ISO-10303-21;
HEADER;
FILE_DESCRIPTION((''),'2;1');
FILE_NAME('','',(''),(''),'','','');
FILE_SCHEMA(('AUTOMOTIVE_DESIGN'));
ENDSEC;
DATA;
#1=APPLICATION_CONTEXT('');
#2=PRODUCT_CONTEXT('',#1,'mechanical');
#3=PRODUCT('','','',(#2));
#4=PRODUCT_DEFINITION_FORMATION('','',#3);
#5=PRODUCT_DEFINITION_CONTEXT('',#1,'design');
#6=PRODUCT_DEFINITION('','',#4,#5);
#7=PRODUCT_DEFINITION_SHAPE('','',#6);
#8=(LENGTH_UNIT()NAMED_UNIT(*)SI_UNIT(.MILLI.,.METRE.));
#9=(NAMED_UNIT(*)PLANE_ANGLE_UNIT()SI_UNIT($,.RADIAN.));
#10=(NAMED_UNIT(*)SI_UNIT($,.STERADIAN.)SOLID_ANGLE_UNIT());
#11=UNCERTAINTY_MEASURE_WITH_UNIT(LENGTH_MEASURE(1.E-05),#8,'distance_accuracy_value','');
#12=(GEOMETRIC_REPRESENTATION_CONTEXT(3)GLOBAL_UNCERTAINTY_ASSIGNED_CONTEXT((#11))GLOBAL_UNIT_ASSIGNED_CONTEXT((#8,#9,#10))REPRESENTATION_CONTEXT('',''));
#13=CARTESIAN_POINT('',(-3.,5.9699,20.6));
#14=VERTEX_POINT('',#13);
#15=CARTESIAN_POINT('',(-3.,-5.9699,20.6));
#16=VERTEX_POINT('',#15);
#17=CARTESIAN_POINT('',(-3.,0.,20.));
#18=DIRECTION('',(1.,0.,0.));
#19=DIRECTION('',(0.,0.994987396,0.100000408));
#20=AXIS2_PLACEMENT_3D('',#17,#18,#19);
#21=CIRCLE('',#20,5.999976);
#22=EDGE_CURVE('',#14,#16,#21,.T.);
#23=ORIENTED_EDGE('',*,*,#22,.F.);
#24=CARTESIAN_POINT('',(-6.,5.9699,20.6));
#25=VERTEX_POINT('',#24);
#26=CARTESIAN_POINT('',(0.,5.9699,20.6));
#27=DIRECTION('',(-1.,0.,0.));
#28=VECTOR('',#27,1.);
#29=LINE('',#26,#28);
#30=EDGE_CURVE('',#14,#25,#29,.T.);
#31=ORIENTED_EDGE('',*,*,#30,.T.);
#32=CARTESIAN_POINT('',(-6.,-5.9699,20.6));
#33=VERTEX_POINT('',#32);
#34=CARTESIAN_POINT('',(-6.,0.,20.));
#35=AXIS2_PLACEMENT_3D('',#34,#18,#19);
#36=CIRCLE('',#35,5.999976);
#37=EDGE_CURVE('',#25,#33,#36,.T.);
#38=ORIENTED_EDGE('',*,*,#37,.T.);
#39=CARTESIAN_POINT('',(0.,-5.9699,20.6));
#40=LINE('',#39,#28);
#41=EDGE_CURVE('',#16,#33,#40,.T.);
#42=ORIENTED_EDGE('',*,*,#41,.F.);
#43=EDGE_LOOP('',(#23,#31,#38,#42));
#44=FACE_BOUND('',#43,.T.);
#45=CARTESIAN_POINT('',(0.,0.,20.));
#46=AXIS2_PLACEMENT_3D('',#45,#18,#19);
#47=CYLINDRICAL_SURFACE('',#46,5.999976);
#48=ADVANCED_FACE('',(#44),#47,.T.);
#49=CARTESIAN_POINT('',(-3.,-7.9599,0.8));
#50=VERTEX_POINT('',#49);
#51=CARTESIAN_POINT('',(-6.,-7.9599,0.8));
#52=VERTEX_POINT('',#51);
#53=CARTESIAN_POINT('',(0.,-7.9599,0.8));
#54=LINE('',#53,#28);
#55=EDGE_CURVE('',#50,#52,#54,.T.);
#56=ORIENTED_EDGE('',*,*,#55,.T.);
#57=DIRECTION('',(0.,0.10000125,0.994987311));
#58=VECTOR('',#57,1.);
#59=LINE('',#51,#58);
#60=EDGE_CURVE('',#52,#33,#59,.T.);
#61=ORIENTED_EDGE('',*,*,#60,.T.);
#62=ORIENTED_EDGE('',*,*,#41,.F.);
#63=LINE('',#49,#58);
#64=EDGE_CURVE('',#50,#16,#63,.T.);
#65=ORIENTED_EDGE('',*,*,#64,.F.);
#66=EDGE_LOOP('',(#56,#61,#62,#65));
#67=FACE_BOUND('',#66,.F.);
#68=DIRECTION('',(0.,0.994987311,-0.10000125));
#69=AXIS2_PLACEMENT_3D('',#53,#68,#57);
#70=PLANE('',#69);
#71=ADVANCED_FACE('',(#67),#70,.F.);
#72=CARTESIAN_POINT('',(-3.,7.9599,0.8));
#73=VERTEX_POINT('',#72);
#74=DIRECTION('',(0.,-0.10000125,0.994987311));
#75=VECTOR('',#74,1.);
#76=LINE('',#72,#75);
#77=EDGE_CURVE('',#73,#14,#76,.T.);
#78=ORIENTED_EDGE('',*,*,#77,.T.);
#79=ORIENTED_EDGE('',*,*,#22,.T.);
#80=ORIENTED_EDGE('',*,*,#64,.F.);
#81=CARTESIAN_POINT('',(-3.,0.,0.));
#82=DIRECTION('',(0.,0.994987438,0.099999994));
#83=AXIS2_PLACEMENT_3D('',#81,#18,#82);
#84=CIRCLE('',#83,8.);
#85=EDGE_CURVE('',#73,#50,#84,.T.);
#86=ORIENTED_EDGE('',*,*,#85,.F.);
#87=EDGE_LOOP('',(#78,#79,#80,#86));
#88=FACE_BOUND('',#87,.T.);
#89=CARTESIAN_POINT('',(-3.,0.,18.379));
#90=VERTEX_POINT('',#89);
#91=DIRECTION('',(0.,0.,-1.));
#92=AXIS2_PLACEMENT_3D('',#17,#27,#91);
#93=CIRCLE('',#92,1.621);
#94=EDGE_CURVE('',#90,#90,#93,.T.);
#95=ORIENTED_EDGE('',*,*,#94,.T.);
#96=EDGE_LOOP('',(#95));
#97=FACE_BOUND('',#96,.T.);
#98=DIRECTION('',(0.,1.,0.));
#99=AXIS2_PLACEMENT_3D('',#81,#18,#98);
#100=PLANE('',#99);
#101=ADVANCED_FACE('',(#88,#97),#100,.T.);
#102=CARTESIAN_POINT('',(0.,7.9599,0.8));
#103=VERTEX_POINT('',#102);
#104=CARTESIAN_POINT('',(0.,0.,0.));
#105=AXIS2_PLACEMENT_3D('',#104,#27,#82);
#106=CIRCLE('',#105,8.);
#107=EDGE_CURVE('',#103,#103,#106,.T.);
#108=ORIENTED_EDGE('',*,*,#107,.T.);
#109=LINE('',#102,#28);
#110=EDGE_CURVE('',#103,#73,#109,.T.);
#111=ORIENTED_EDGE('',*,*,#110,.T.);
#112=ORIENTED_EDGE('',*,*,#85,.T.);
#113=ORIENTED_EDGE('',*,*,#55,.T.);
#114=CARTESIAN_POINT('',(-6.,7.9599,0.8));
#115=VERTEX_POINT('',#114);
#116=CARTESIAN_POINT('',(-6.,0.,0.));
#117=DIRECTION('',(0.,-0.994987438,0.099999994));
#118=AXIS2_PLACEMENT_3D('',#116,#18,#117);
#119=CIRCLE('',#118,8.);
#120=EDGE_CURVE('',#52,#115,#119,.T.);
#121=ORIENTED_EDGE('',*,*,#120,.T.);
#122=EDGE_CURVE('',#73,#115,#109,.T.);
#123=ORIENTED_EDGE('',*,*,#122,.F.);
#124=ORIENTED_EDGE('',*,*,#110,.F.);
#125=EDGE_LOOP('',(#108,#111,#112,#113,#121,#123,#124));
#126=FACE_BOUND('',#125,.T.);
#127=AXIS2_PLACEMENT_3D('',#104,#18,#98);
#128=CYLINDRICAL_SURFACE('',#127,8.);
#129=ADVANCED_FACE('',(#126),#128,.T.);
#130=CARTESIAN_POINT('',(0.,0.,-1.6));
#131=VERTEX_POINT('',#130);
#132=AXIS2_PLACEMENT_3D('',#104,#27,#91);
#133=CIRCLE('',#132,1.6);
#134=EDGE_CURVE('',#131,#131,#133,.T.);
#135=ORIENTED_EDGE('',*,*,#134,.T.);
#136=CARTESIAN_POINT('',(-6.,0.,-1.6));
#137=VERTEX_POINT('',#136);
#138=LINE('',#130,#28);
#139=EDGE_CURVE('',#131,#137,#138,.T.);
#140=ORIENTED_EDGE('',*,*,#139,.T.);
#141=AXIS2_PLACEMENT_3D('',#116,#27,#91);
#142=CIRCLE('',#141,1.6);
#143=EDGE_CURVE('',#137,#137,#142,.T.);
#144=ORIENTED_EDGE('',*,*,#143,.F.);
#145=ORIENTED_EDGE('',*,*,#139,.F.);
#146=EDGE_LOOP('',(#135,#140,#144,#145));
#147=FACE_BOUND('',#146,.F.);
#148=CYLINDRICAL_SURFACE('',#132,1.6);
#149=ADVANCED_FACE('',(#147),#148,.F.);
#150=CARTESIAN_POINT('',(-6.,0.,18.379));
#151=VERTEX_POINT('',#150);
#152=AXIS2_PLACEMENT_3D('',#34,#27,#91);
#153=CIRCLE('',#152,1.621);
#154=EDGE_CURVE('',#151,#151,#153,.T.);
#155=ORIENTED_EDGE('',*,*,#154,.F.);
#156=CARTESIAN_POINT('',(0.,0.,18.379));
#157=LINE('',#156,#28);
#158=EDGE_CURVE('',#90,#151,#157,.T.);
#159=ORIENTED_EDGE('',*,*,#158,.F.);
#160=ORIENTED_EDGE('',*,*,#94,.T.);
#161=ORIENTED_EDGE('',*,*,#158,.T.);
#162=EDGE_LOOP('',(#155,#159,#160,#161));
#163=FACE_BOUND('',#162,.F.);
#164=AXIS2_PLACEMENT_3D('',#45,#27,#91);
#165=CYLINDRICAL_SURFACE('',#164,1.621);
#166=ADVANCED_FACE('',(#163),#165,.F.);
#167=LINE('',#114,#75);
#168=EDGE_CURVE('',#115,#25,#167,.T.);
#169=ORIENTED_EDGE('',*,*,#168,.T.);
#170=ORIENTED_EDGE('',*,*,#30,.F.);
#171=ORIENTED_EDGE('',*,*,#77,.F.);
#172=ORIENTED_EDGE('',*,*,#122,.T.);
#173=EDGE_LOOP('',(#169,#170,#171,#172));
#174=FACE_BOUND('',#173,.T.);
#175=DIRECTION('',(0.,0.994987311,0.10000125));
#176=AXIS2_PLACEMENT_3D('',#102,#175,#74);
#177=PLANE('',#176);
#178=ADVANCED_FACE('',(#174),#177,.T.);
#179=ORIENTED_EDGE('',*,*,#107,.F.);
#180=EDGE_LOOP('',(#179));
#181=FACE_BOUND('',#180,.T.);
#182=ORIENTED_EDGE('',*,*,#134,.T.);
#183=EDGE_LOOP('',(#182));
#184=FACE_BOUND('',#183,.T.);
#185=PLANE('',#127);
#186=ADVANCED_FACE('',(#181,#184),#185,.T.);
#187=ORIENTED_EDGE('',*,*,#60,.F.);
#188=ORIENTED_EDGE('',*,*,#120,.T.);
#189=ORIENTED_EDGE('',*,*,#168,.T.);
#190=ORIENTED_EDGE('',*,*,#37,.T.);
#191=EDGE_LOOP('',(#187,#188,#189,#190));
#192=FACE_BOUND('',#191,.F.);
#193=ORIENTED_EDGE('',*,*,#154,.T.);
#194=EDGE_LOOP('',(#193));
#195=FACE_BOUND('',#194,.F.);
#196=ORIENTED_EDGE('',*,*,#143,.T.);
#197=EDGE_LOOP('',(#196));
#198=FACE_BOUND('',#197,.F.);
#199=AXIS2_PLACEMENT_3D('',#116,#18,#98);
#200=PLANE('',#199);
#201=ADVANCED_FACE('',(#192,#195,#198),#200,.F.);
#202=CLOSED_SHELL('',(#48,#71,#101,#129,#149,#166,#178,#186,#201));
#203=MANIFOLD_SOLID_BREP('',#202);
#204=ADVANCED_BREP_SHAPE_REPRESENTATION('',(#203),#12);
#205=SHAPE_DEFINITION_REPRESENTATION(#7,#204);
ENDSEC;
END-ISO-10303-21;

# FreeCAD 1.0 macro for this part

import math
import FreeCAD as App
import Part
import Sketcher

V = App.Vector

doc = App.newDocument("Part")
body = doc.addObject("PartDesign::Body", "Body")

sketch1 = body.newObject("Sketcher::SketchObject", "Sketch")
sketch1.AttachmentSupport = (doc.getObject("YZ_Plane"), [""])
sketch1.MapMode = "FlatFace"
sketch1.addGeometry(Part.LineSegment(V(7.9599, 0.8, 0), V(5.9699, 20.6, 0)), False)
sketch1.addGeometry(Part.ArcOfCircle(Part.Circle(V(0, 20, 0), V(0, 0, 1), 5.999976), math.radians(5.739194), math.radians(174.260806)), False)
sketch1.addGeometry(Part.LineSegment(V(-5.9699, 20.6, 0), V(-7.9599, 0.8, 0)), False)
sketch1.addGeometry(Part.ArcOfCircle(Part.Circle(V(0, 0, 0), V(0, 0, 1), 8), math.radians(174.26083), math.radians(365.73917)), False)
sketch1.addConstraint(Sketcher.Constraint("Tangent", 0, 2, 1, 1))
sketch1.addConstraint(Sketcher.Constraint("Tangent", 1, 2, 2, 1))
sketch1.addConstraint(Sketcher.Constraint("Tangent", 2, 2, 3, 1))
sketch1.addConstraint(Sketcher.Constraint("Tangent", 3, 2, 0, 1))
sketch1.addConstraint(Sketcher.Constraint("Coincident", 3, 3, -1, 1))
sketch1.addConstraint(Sketcher.Constraint("PointOnObject", 1, 3, -2))
sketch1.addConstraint(Sketcher.Constraint("Radius", 1, 6.0))
sketch1.addConstraint(Sketcher.Constraint("Radius", 3, 8.0))
sketch1.addConstraint(Sketcher.Constraint("DistanceY", -1, 1, 1, 3, 20.0))
pad1 = body.newObject("PartDesign::Pad", "Pad")
pad1.Profile = sketch1
pad1.Length = 6
pad1.Reversed = True

sketch2 = body.newObject("Sketcher::SketchObject", "Sketch001")
sketch2.AttachmentSupport = (doc.getObject("YZ_Plane"), [""])
sketch2.MapMode = "FlatFace"
sketch2.addGeometry(Part.ArcOfCircle(Part.Circle(V(0, 0, 0), V(0, 0, 1), 8), math.radians(5.73917), math.radians(174.26083)), False)
sketch2.addGeometry(Part.LineSegment(V(7.9599, 0.8, 0), V(5.9699, 20.6, 0)), False)
sketch2.addGeometry(Part.ArcOfCircle(Part.Circle(V(0, 20, 0), V(0, 0, 1), 5.999976), math.radians(5.739194), math.radians(174.260806)), False)
sketch2.addGeometry(Part.LineSegment(V(-5.9699, 20.6, 0), V(-7.9599, 0.8, 0)), False)
sketch2.addConstraint(Sketcher.Constraint("Tangent", 0, 1, 1, 1))
sketch2.addConstraint(Sketcher.Constraint("Tangent", 1, 2, 2, 1))
sketch2.addConstraint(Sketcher.Constraint("Tangent", 2, 2, 3, 1))
sketch2.addConstraint(Sketcher.Constraint("Tangent", 3, 2, 0, 2))
sketch2.addConstraint(Sketcher.Constraint("Coincident", 0, 3, -1, 1))
sketch2.addConstraint(Sketcher.Constraint("PointOnObject", 2, 3, -2))
sketch2.addConstraint(Sketcher.Constraint("Radius", 0, 8.0))
sketch2.addConstraint(Sketcher.Constraint("Radius", 2, 6.0))
sketch2.addConstraint(Sketcher.Constraint("DistanceY", -1, 1, 2, 3, 20.0))
pocket1 = body.newObject("PartDesign::Pocket", "Pocket")
pocket1.Profile = sketch2
pocket1.Length = 3

sketch3 = body.newObject("Sketcher::SketchObject", "Sketch002")
sketch3.AttachmentSupport = (doc.getObject("YZ_Plane"), [""])
sketch3.MapMode = "FlatFace"
sketch3.addGeometry(Part.Circle(V(0, 20, 0), V(0, 0, 1), 1.621), False)
sketch3.addConstraint(Sketcher.Constraint("PointOnObject", 0, 3, -2))
sketch3.addConstraint(Sketcher.Constraint("Diameter", 0, 3.242))
sketch3.addConstraint(Sketcher.Constraint("DistanceY", -1, 1, 0, 3, 20.0))
doc.recompute()
hole = body.newObject("PartDesign::Hole", "Hole")
hole.Profile = sketch3
hole.ThreadType = "None"
hole.Diameter = 3.242
hole.DepthType = "ThroughAll"

sketch4 = body.newObject("Sketcher::SketchObject", "Sketch003")
sketch4.AttachmentSupport = (doc.getObject("YZ_Plane"), [""])
sketch4.MapMode = "FlatFace"
sketch4.addGeometry(Part.Circle(V(0, 0, 0), V(0, 0, 1), 1.6), False)
sketch4.addConstraint(Sketcher.Constraint("Coincident", 0, 3, -1, 1))
sketch4.addConstraint(Sketcher.Constraint("Diameter", 0, 3.2))
doc.recompute()
hole2 = body.newObject("PartDesign::Hole", "Hole001")
hole2.Profile = sketch4
hole2.ThreadType = "None"
hole2.Diameter = 3.2
hole2.DepthType = "ThroughAll"

doc.recompute()
